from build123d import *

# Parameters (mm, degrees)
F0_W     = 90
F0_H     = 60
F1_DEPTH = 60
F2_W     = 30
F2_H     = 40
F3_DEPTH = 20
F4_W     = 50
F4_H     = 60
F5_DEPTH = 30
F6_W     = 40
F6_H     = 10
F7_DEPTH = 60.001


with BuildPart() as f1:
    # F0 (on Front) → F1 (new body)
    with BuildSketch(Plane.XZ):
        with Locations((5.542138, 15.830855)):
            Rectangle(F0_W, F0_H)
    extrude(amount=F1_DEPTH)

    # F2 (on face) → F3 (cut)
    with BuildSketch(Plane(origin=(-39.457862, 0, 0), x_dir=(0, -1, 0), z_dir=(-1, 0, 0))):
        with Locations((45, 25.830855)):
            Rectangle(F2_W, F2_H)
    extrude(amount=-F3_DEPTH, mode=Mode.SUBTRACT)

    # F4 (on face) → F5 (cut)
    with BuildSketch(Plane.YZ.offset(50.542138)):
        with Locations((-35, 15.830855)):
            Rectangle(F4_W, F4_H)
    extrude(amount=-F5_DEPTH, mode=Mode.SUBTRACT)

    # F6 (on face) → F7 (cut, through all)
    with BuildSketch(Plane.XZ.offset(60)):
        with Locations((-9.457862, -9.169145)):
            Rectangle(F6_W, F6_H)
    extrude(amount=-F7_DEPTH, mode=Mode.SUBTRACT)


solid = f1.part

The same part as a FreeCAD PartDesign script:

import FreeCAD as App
import Part
import Sketcher

V = App.Vector
Q = App.Units.Quantity

doc = App.newDocument("Part")
body = doc.addObject("PartDesign::Body", "Body")

sketch1 = body.newObject("Sketcher::SketchObject", "Sketch")
sketch1.AttachmentSupport = (doc.getObject("XZ_Plane"), [""])
sketch1.MapMode = "FlatFace"
sketch1.addGeometry(Part.LineSegment(V(-39, 46, 0), V(-39, -14, 0)), False)
sketch1.addGeometry(Part.LineSegment(V(-39, -14, 0), V(51, -14, 0)), False)
sketch1.addGeometry(Part.LineSegment(V(51, -14, 0), V(51, 46, 0)), False)
sketch1.addGeometry(Part.LineSegment(V(51, 46, 0), V(-39, 46, 0)), False)
sketch1.addConstraint(Sketcher.Constraint("Coincident", 0, 2, 1, 1))
sketch1.addConstraint(Sketcher.Constraint("Coincident", 1, 2, 2, 1))
sketch1.addConstraint(Sketcher.Constraint("Coincident", 2, 2, 3, 1))
sketch1.addConstraint(Sketcher.Constraint("Coincident", 3, 2, 0, 1))
sketch1.addConstraint(Sketcher.Constraint("Vertical", 0))
sketch1.addConstraint(Sketcher.Constraint("Horizontal", 1))
sketch1.addConstraint(Sketcher.Constraint("Vertical", 2))
sketch1.addConstraint(Sketcher.Constraint("Horizontal", 3))
sketch1.addConstraint(Sketcher.Constraint("DistanceX", 1, 1, 1, 2, Q("90 mm")))
sketch1.addConstraint(Sketcher.Constraint("DistanceY", 0, 2, 0, 1, Q("60 mm")))
sketch1.addConstraint(Sketcher.Constraint("DistanceX", 0, 2, -1, 1, Q("39.457862 mm")))
sketch1.addConstraint(Sketcher.Constraint("DistanceY", 0, 2, -1, 1, Q("14.169145 mm")))
pad1 = body.newObject("PartDesign::Pad", "Pad")
pad1.Profile = sketch1
pad1.Length = 60

sketch2 = body.newObject("Sketcher::SketchObject", "Sketch001")
sketch2.AttachmentSupport = (doc.getObject("YZ_Plane"), [""])
sketch2.MapMode = "FlatFace"
sketch2.AttachmentOffset = App.Placement(V(0, 0, -39.457862), App.Rotation())
sketch2.addGeometry(Part.LineSegment(V(-30, 46, 0), V(-30, 6, 0)), False)
sketch2.addGeometry(Part.LineSegment(V(-30, 6, 0), V(-60, 6, 0)), False)
sketch2.addGeometry(Part.LineSegment(V(-60, 6, 0), V(-60, 46, 0)), False)
sketch2.addGeometry(Part.LineSegment(V(-60, 46, 0), V(-30, 46, 0)), False)
sketch2.addConstraint(Sketcher.Constraint("Coincident", 0, 2, 1, 1))
sketch2.addConstraint(Sketcher.Constraint("Coincident", 1, 2, 2, 1))
sketch2.addConstraint(Sketcher.Constraint("Coincident", 2, 2, 3, 1))
sketch2.addConstraint(Sketcher.Constraint("Coincident", 3, 2, 0, 1))
sketch2.addConstraint(Sketcher.Constraint("Vertical", 0))
sketch2.addConstraint(Sketcher.Constraint("Horizontal", 1))
sketch2.addConstraint(Sketcher.Constraint("Vertical", 2))
sketch2.addConstraint(Sketcher.Constraint("Horizontal", 3))
sketch2.addConstraint(Sketcher.Constraint("DistanceX", 1, 2, 1, 1, Q("30 mm")))
sketch2.addConstraint(Sketcher.Constraint("DistanceY", 0, 2, 0, 1, Q("40 mm")))
sketch2.addConstraint(Sketcher.Constraint("DistanceX", 0, 2, -1, 1, Q("30 mm")))
sketch2.addConstraint(Sketcher.Constraint("DistanceY", -1, 1, 0, 2, Q("5.830855 mm")))
pocket1 = body.newObject("PartDesign::Pocket", "Pocket")
pocket1.Profile = sketch2
pocket1.Length = 20
pocket1.Reversed = True

sketch3 = body.newObject("Sketcher::SketchObject", "Sketch002")
sketch3.AttachmentSupport = (doc.getObject("YZ_Plane"), [""])
sketch3.MapMode = "FlatFace"
sketch3.AttachmentOffset = App.Placement(V(0, 0, 50.542138), App.Rotation())
sketch3.addGeometry(Part.LineSegment(V(-60, 46, 0), V(-60, -14, 0)), False)
sketch3.addGeometry(Part.LineSegment(V(-60, -14, 0), V(-10, -14, 0)), False)
sketch3.addGeometry(Part.LineSegment(V(-10, -14, 0), V(-10, 46, 0)), False)
sketch3.addGeometry(Part.LineSegment(V(-10, 46, 0), V(-60, 46, 0)), False)
sketch3.addConstraint(Sketcher.Constraint("Coincident", 0, 2, 1, 1))
sketch3.addConstraint(Sketcher.Constraint("Coincident", 1, 2, 2, 1))
sketch3.addConstraint(Sketcher.Constraint("Coincident", 2, 2, 3, 1))
sketch3.addConstraint(Sketcher.Constraint("Coincident", 3, 2, 0, 1))
sketch3.addConstraint(Sketcher.Constraint("Vertical", 0))
sketch3.addConstraint(Sketcher.Constraint("Horizontal", 1))
sketch3.addConstraint(Sketcher.Constraint("Vertical", 2))
sketch3.addConstraint(Sketcher.Constraint("Horizontal", 3))
sketch3.addConstraint(Sketcher.Constraint("DistanceX", 1, 1, 1, 2, Q("50 mm")))
sketch3.addConstraint(Sketcher.Constraint("DistanceY", 0, 2, 0, 1, Q("60 mm")))
sketch3.addConstraint(Sketcher.Constraint("DistanceX", 0, 2, -1, 1, Q("60 mm")))
sketch3.addConstraint(Sketcher.Constraint("DistanceY", 0, 2, -1, 1, Q("14.169145 mm")))
pocket2 = body.newObject("PartDesign::Pocket", "Pocket001")
pocket2.Profile = sketch3
pocket2.Length = 30

sketch4 = body.newObject("Sketcher::SketchObject", "Sketch003")
sketch4.AttachmentSupport = (doc.getObject("XZ_Plane"), [""])
sketch4.MapMode = "FlatFace"
sketch4.AttachmentOffset = App.Placement(V(0, 0, 60), App.Rotation())
sketch4.addGeometry(Part.LineSegment(V(-29, -4, 0), V(-29, -14, 0)), False)
sketch4.addGeometry(Part.LineSegment(V(-29, -14, 0), V(11, -14, 0)), False)
sketch4.addGeometry(Part.LineSegment(V(11, -14, 0), V(11, -4, 0)), False)
sketch4.addGeometry(Part.LineSegment(V(11, -4, 0), V(-29, -4, 0)), False)
sketch4.addConstraint(Sketcher.Constraint("Coincident", 0, 2, 1, 1))
sketch4.addConstraint(Sketcher.Constraint("Coincident", 1, 2, 2, 1))
sketch4.addConstraint(Sketcher.Constraint("Coincident", 2, 2, 3, 1))
sketch4.addConstraint(Sketcher.Constraint("Coincident", 3, 2, 0, 1))
sketch4.addConstraint(Sketcher.Constraint("Vertical", 0))
sketch4.addConstraint(Sketcher.Constraint("Horizontal", 1))
sketch4.addConstraint(Sketcher.Constraint("Vertical", 2))
sketch4.addConstraint(Sketcher.Constraint("Horizontal", 3))
sketch4.addConstraint(Sketcher.Constraint("DistanceX", 1, 1, 1, 2, Q("40 mm")))
sketch4.addConstraint(Sketcher.Constraint("DistanceY", 0, 2, 0, 1, Q("10 mm")))
sketch4.addConstraint(Sketcher.Constraint("DistanceX", 0, 2, -1, 1, Q("29.457862 mm")))
sketch4.addConstraint(Sketcher.Constraint("DistanceY", 0, 2, -1, 1, Q("14.169145 mm")))
pocket3 = body.newObject("PartDesign::Pocket", "Pocket002")
pocket3.Profile = sketch4
pocket3.Type = "ThroughAll"

doc.recompute()
